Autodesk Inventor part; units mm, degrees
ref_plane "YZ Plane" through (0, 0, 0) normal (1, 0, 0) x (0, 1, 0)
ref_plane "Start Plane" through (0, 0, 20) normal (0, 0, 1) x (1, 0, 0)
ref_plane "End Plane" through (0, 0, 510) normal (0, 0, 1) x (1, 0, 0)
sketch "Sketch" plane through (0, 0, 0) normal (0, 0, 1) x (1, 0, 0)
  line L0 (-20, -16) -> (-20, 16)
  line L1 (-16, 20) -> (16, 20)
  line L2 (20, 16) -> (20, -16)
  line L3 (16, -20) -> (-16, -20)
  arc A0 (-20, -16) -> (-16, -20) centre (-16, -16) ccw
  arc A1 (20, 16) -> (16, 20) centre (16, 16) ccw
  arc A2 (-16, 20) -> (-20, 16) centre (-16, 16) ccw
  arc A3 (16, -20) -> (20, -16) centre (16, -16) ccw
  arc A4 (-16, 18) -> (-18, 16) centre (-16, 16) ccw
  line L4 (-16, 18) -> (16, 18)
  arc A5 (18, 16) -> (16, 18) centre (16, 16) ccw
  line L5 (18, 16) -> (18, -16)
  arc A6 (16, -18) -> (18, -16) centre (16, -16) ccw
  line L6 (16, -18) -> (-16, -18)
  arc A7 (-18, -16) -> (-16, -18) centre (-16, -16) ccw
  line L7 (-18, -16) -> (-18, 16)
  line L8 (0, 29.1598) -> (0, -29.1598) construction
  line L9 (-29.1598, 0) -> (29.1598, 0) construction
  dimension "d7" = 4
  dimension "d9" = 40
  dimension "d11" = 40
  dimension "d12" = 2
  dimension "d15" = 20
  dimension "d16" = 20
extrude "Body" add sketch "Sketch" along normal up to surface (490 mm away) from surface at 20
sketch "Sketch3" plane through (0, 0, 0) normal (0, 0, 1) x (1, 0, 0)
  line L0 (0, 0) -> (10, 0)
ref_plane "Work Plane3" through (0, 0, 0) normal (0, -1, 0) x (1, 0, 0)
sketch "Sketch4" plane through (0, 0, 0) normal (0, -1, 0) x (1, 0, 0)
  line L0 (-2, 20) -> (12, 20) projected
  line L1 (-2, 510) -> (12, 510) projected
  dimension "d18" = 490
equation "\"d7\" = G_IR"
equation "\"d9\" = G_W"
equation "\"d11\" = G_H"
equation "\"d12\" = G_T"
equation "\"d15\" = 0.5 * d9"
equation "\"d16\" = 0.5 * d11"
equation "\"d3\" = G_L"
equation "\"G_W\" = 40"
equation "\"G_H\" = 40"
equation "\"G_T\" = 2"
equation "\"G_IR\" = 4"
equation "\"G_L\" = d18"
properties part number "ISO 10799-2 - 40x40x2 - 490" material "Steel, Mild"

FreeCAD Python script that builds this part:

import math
import FreeCAD as App
import Part
import Sketcher
from FreeCAD import Vector
Q = App.Units.Quantity

doc = App.newDocument("Part")
params = doc.addObject("Spreadsheet::Sheet", "Params")
for row, (alias, value) in enumerate([
    ("sketch1_radius", "4 mm"),
    ("sketch1_radius2", "2 mm"),
    ("pad1_length", "490 mm"),
], start=1):
    params.set(f"A{row}", alias)
    params.set(f"B{row}", "=" + value)
    params.setAlias(f"B{row}", alias)

body = doc.addObject("PartDesign::Body", "Body")

# Sketch on XY plane
sketch1 = body.newObject("Sketcher::SketchObject", "Sketch")
sketch1.AttachmentSupport = (doc.getObject("XY_Plane"), [""])
sketch1.MapMode = "FlatFace"
sketch1.AttachmentOffset = App.Placement(Vector(0, 0, 20), App.Rotation())
sketch1.addGeometry([
    Part.LineSegment(Vector(-20, 16, 0), Vector(-20, -16, 0)),  # 0
    Part.ArcOfCircle(Part.Circle(Vector(-16, -16, 0), Vector(0, 0, 1), 4), math.radians(180), math.radians(270)),  # 1
    Part.LineSegment(Vector(-16, -20, 0), Vector(16, -20, 0)),  # 2
    Part.ArcOfCircle(Part.Circle(Vector(16, -16, 0), Vector(0, 0, 1), 4), math.radians(-90), math.radians(0)),  # 3
    Part.LineSegment(Vector(20, -16, 0), Vector(20, 16, 0)),  # 4
    Part.ArcOfCircle(Part.Circle(Vector(16, 16, 0), Vector(0, 0, 1), 4), math.radians(0), math.radians(90)),  # 5
    Part.LineSegment(Vector(16, 20, 0), Vector(-16, 20, 0)),  # 6
    Part.ArcOfCircle(Part.Circle(Vector(-16, 16, 0), Vector(0, 0, 1), 4), math.radians(90), math.radians(180)),  # 7
    Part.ArcOfCircle(Part.Circle(Vector(-16, 16, 0), Vector(0, 0, 1), 2), math.radians(90), math.radians(180)),  # 8
    Part.LineSegment(Vector(-16, 18, 0), Vector(16, 18, 0)),  # 9
    Part.ArcOfCircle(Part.Circle(Vector(16, 16, 0), Vector(0, 0, 1), 2), math.radians(0), math.radians(90)),  # 10
    Part.LineSegment(Vector(18, 16, 0), Vector(18, -16, 0)),  # 11
    Part.ArcOfCircle(Part.Circle(Vector(16, -16, 0), Vector(0, 0, 1), 2), math.radians(-90), math.radians(0)),  # 12
    Part.LineSegment(Vector(16, -18, 0), Vector(-16, -18, 0)),  # 13
    Part.ArcOfCircle(Part.Circle(Vector(-16, -16, 0), Vector(0, 0, 1), 2), math.radians(180), math.radians(270)),  # 14
    Part.LineSegment(Vector(-18, -16, 0), Vector(-18, 16, 0)),  # 15
], False)
sketch1.addConstraint([
    Sketcher.Constraint("Tangent", 0, 2, 1, 1),
    Sketcher.Constraint("Tangent", 1, 2, 2, 1),
    Sketcher.Constraint("Tangent", 2, 2, 3, 1),
    Sketcher.Constraint("Tangent", 3, 2, 4, 1),
    Sketcher.Constraint("Tangent", 4, 2, 5, 1),
    Sketcher.Constraint("Tangent", 5, 2, 6, 1),
    Sketcher.Constraint("Tangent", 6, 2, 7, 1),
    Sketcher.Constraint("Tangent", 7, 2, 0, 1),
    Sketcher.Constraint("Tangent", 8, 1, 9, 1),
    Sketcher.Constraint("Tangent", 9, 2, 10, 2),
    Sketcher.Constraint("Tangent", 10, 1, 11, 1),
    Sketcher.Constraint("Tangent", 11, 2, 12, 2),
    Sketcher.Constraint("Tangent", 12, 1, 13, 1),
    Sketcher.Constraint("Tangent", 13, 2, 14, 2),
    Sketcher.Constraint("Tangent", 14, 1, 15, 1),
    Sketcher.Constraint("Tangent", 15, 2, 8, 2),
    Sketcher.Constraint("Vertical", 0),
    Sketcher.Constraint("Horizontal", 2),
    Sketcher.Constraint("Vertical", 4),
    Sketcher.Constraint("Horizontal", 6),
    Sketcher.Constraint("Horizontal", 9),
    Sketcher.Constraint("Vertical", 11),
    Sketcher.Constraint("Horizontal", 13),
    Sketcher.Constraint("Vertical", 15),
    Sketcher.Constraint("Coincident", 8, 3, 7, 3),
    Sketcher.Constraint("Coincident", 10, 3, 5, 3),
    Sketcher.Constraint("Coincident", 12, 3, 3, 3),
    Sketcher.Constraint("Equal", 1, 3),
    Sketcher.Constraint("Equal", 3, 5),
    Sketcher.Constraint("Equal", 5, 7),
    Sketcher.Constraint("Equal", 12, 14),
    Sketcher.Constraint("Symmetric", 1, 3, 5, 3, -1, 1),
    Sketcher.Constraint("Equal", 13, 0),
    Sketcher.Constraint("Radius", 1, Q("4 mm")),
    Sketcher.Constraint("Radius", 8, Q("2 mm")),
    Sketcher.Constraint("DistanceX", 0, 2, -1, 1, Q("20 mm")),
])
sketch1.setExpression("Constraints[33]", "Params.sketch1_radius")
sketch1.setExpression("Constraints[34]", "Params.sketch1_radius2")
pad1 = body.newObject("PartDesign::Pad", "Pad")
pad1.Profile = sketch1
pad1.setExpression("Length", "Params.pad1_length")

doc.recompute()
